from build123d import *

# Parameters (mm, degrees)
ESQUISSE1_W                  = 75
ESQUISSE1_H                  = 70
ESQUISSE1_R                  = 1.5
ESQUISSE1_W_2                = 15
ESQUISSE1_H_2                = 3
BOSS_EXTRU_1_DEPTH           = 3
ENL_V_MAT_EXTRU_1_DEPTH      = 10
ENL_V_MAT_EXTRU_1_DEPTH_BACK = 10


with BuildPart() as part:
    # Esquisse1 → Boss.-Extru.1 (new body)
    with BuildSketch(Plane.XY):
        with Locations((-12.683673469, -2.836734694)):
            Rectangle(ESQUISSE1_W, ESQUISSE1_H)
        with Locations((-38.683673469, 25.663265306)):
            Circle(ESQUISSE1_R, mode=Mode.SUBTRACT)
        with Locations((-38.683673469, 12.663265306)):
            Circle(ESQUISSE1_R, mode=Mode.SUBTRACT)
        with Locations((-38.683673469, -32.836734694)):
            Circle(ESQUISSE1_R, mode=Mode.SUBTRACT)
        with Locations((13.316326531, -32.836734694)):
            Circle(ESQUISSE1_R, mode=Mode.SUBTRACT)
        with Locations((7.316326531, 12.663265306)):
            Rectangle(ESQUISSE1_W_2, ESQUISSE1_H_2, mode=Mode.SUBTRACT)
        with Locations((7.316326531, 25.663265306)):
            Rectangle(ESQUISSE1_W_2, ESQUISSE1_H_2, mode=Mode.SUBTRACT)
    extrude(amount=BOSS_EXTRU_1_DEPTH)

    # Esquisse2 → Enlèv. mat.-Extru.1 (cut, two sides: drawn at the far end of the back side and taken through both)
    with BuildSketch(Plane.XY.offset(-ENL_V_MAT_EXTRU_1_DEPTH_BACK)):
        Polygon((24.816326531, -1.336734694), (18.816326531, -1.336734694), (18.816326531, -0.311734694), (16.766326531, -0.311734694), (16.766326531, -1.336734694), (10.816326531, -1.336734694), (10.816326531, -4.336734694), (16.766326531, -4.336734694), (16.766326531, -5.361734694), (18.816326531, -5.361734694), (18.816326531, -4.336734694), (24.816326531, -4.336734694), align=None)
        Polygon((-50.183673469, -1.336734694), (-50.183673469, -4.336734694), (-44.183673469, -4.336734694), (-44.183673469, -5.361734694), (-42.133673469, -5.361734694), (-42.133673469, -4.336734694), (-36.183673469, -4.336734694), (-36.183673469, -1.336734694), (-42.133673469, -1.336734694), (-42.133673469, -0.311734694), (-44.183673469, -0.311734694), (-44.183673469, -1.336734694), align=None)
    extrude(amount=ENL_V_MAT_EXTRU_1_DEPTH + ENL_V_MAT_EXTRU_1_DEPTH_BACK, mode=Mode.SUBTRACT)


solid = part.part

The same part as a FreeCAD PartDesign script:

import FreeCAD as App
import Part
import Sketcher

V = App.Vector


def add_polygon(sketch, points):
    """Adds a closed chain of lines whose ends are joined by coincident constraints."""
    first, n = sketch.GeometryCount, len(points)
    for a, b in zip(points, points[1:] + points[:1]):
        sketch.addGeometry(Part.LineSegment(App.Vector(*a, 0), App.Vector(*b, 0)), False)
    for i in range(n):
        sketch.addConstraint(Sketcher.Constraint("Coincident", first + i, 2, first + (i + 1) % n, 1))

doc = App.newDocument("Part")
body = doc.addObject("PartDesign::Body", "Body")

# Sketch on XY plane
sketch1 = doc.addObject("Sketcher::SketchObject", "Sketch")
body.addObject(sketch1)
sketch1.AttachmentSupport = (doc.XY_Plane, [""])
sketch1.MapMode = "FlatFace"
add_polygon(sketch1, [(-50.2, 32.2), (-50.2, -37.8), (24.8, -37.8), (24.8, 32.2)])  # lines 0-3
sketch1.addGeometry(Part.Circle(V(-38.7, -32.8, 0), V(0, 0, 1), 1.5), False)  # 4
sketch1.addGeometry(Part.Circle(V(13.3, -32.8, 0), V(0, 0, 1), 1.5), False)  # 5
sketch1.addGeometry(Part.Circle(V(-38.7, 12.7, 0), V(0, 0, 1), 1.5), False)  # 6
sketch1.addGeometry(Part.Circle(V(-38.7, 25.7, 0), V(0, 0, 1), 1.5), False)  # 7
add_polygon(sketch1, [(14.8, 11.2), (-0.2, 11.2), (-0.2, 14.2), (14.8, 14.2)])  # lines 8-11
add_polygon(sketch1, [(14.8, 24.2), (-0.2, 24.2), (-0.2, 27.2), (14.8, 27.2)])  # lines 12-15
sketch1.addConstraint([
    Sketcher.Constraint("Vertical", 0),
    Sketcher.Constraint("Horizontal", 1),
    Sketcher.Constraint("Vertical", 2),
    Sketcher.Constraint("Horizontal", 3),
    Sketcher.Constraint("Horizontal", 8),
    Sketcher.Constraint("Vertical", 9),
    Sketcher.Constraint("Horizontal", 10),
    Sketcher.Constraint("Vertical", 11),
    Sketcher.Constraint("Horizontal", 12),
    Sketcher.Constraint("Vertical", 13),
    Sketcher.Constraint("Horizontal", 14),
    Sketcher.Constraint("Vertical", 15),
    Sketcher.Constraint("Equal", 4, 5),
    Sketcher.Constraint("Equal", 5, 6),
    Sketcher.Constraint("Equal", 6, 7),
    Sketcher.Constraint("Horizontal", 4, 3, 5, 3),
    Sketcher.Constraint("Vertical", 4, 3, 6, 3),
    Sketcher.Constraint("Vertical", 6, 3, 7, 3),
    Sketcher.Constraint("Vertical", 9, 2, 12, 2),
    Sketcher.Constraint("Vertical", 11, 2, 14, 2),
    Sketcher.Constraint("Equal", 11, 13),
    Sketcher.Constraint("Diameter", 4, 3.0),
    Sketcher.Constraint("DistanceX", 1, 1, 1, 2, 75.0),
    Sketcher.Constraint("DistanceX", 8, 2, 8, 1, 15.0),
    Sketcher.Constraint("DistanceY", 0, 2, 0, 1, 70.0),
    Sketcher.Constraint("DistanceY", 9, 1, 9, 2, 3.0),
    Sketcher.Constraint("DistanceX", 4, 3, 5, 3, 52.0),
    Sketcher.Constraint("DistanceY", 6, 3, 7, 3, 13.0),
    Sketcher.Constraint("DistanceY", 0, 2, 4, 3, 5.0),
    Sketcher.Constraint("DistanceX", 8, 2, 2, 2, 25.0),
    Sketcher.Constraint("DistanceY", 8, 2, 2, 2, 21.0),
    Sketcher.Constraint("DistanceY", 9, 2, 12, 2, 10.0),
    Sketcher.Constraint("DistanceY", 4, 3, 6, 3, 45.5),
    Sketcher.Constraint("DistanceX", 0, 2, 4, 3, 11.5),
    Sketcher.Constraint("DistanceX", 4, 3, -1, 1, 38.683673),
    Sketcher.Constraint("DistanceY", 4, 3, -1, 1, 32.836735),
])
pad1 = doc.addObject("PartDesign::Pad", "Pad")
body.addObject(pad1)
pad1.Profile = sketch1
pad1.Length = 3

# Sketch on XY plane
sketch2 = doc.addObject("Sketcher::SketchObject", "Sketch001")
body.addObject(sketch2)
sketch2.AttachmentSupport = (doc.XY_Plane, [""])
sketch2.MapMode = "FlatFace"
add_polygon(sketch2, [(24.8, -1.3), (18.8, -1.3), (18.8, -0.3), (16.8, -0.3), (16.8, -1.3), (10.8, -1.3), (10.8, -4.3), (16.8, -4.3), (16.8, -5.4), (18.8, -5.4), (18.8, -4.3), (24.8, -4.3)])  # lines 0-11
add_polygon(sketch2, [(-50.2, -1.3), (-50.2, -4.3), (-44.2, -4.3), (-44.2, -5.4), (-42.1, -5.4), (-42.1, -4.3), (-36.2, -4.3), (-36.2, -1.3), (-42.1, -1.3), (-42.1, -0.3), (-44.2, -0.3), (-44.2, -1.3)])  # lines 12-23
sketch2.addConstraint([
    Sketcher.Constraint("Horizontal", 0),
    Sketcher.Constraint("Vertical", 1),
    Sketcher.Constraint("Horizontal", 2),
    Sketcher.Constraint("Vertical", 3),
    Sketcher.Constraint("Horizontal", 4),
    Sketcher.Constraint("Vertical", 5),
    Sketcher.Constraint("Horizontal", 6),
    Sketcher.Constraint("Vertical", 7),
    Sketcher.Constraint("Horizontal", 8),
    Sketcher.Constraint("Vertical", 9),
    Sketcher.Constraint("Horizontal", 10),
    Sketcher.Constraint("Vertical", 11),
    Sketcher.Constraint("Vertical", 12),
    Sketcher.Constraint("Horizontal", 13),
    Sketcher.Constraint("Vertical", 14),
    Sketcher.Constraint("Horizontal", 15),
    Sketcher.Constraint("Vertical", 16),
    Sketcher.Constraint("Horizontal", 17),
    Sketcher.Constraint("Vertical", 18),
    Sketcher.Constraint("Horizontal", 19),
    Sketcher.Constraint("Vertical", 20),
    Sketcher.Constraint("Horizontal", 21),
    Sketcher.Constraint("Vertical", 22),
    Sketcher.Constraint("Horizontal", 23),
    Sketcher.Constraint("Horizontal", 0, 2, 3, 2),
    Sketcher.Constraint("Horizontal", 6, 2, 9, 2),
    Sketcher.Constraint("Horizontal", 10, 2, 12, 2),
    Sketcher.Constraint("Horizontal", 8, 2, 14, 2),
    Sketcher.Constraint("Horizontal", 13, 2, 16, 2),
    Sketcher.Constraint("Horizontal", 11, 2, 18, 2),
    Sketcher.Constraint("Horizontal", 2, 2, 20, 2),
    Sketcher.Constraint("Horizontal", 19, 2, 22, 2),
    Sketcher.Constraint("Vertical", 3, 2, 6, 2),
    Sketcher.Constraint("Vertical", 1, 2, 8, 2),
    Sketcher.Constraint("Vertical", 16, 2, 19, 2),
    Sketcher.Constraint("Vertical", 14, 2, 21, 2),
    Sketcher.Constraint("Equal", 10, 13),
    Sketcher.Constraint("Equal", 8, 15),
    Sketcher.Constraint("Equal", 6, 17),
    Sketcher.Constraint("Equal", 3, 7),
    Sketcher.Constraint("DistanceX", 0, 2, 0, 1, 6.0),
    Sketcher.Constraint("DistanceY", 5, 2, 5, 1, 3.0),
    Sketcher.Constraint("DistanceX", 4, 2, 0, 2, 8.0),
    Sketcher.Constraint("DistanceX", 12, 2, 5, 2, 61.0),
    Sketcher.Constraint("DistanceX", 2, 2, 2, 1, 2.05),
    Sketcher.Constraint("DistanceY", 1, 1, 1, 2, 1.025),
    Sketcher.Constraint("DistanceX", -1, 1, 0, 2, 18.816327),
    Sketcher.Constraint("DistanceY", 0, 2, -1, 1, 1.336735),
])
pocket1 = doc.addObject("PartDesign::Pocket", "Pocket")
body.addObject(pocket1)
pocket1.Profile = sketch2
pocket1.Type = "ThroughAll"
pocket1.Midplane = True

doc.recompute()
